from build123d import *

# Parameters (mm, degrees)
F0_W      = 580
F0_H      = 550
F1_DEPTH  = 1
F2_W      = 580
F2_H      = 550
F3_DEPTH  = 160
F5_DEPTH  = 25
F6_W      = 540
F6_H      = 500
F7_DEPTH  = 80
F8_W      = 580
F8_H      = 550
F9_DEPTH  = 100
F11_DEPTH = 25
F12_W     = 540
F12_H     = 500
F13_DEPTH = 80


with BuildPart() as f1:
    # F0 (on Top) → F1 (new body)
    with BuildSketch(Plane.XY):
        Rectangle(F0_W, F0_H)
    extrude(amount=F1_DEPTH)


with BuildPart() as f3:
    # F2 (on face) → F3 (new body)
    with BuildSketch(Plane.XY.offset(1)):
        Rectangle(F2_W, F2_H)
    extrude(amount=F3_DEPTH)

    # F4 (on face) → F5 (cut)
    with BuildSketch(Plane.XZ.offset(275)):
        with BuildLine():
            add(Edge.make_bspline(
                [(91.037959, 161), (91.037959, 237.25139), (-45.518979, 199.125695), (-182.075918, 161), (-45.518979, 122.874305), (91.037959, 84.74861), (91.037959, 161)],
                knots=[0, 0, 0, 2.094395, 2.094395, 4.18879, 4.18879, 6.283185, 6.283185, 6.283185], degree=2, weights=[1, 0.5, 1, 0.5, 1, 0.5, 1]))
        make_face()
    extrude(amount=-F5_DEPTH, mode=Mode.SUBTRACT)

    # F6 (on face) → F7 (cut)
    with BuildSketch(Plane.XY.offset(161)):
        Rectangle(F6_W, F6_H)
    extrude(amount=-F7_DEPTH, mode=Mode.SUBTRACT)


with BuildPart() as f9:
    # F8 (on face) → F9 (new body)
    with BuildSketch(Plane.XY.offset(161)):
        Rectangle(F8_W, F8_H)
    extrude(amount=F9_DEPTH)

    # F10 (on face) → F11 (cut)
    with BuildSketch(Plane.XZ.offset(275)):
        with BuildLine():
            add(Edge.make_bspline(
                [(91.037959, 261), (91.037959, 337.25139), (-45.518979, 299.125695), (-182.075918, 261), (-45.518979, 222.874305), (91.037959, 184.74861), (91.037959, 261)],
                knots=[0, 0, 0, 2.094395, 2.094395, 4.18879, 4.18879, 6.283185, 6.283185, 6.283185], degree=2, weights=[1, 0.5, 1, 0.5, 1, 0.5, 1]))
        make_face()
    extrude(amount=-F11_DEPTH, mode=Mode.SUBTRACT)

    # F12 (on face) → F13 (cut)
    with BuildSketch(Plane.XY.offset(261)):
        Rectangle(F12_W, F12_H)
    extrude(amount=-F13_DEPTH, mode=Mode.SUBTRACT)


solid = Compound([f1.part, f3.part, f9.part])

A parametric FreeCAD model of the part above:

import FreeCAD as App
import Part
import Sketcher
from FreeCAD import Vector
Q = App.Units.Quantity

doc = App.newDocument("Part")
body = doc.addObject("PartDesign::Body", "Body")

sketch1 = body.newObject("Sketcher::SketchObject", "Sketch")
sketch1.AttachmentSupport = (doc.getObject("XY_Plane"), [""])
sketch1.MapMode = "FlatFace"
sketch1.addGeometry(Part.LineSegment(Vector(-290, 275, 0), Vector(-290, -275, 0)), False)
sketch1.addGeometry(Part.LineSegment(Vector(-290, -275, 0), Vector(290, -275, 0)), False)
sketch1.addGeometry(Part.LineSegment(Vector(290, -275, 0), Vector(290, 275, 0)), False)
sketch1.addGeometry(Part.LineSegment(Vector(290, 275, 0), Vector(-290, 275, 0)), False)
sketch1.addConstraint(Sketcher.Constraint("Coincident", 0, 2, 1, 1))
sketch1.addConstraint(Sketcher.Constraint("Coincident", 1, 2, 2, 1))
sketch1.addConstraint(Sketcher.Constraint("Coincident", 2, 2, 3, 1))
sketch1.addConstraint(Sketcher.Constraint("Coincident", 3, 2, 0, 1))
sketch1.addConstraint(Sketcher.Constraint("Vertical", 0))
sketch1.addConstraint(Sketcher.Constraint("Horizontal", 1))
sketch1.addConstraint(Sketcher.Constraint("Vertical", 2))
sketch1.addConstraint(Sketcher.Constraint("Horizontal", 3))
sketch1.addConstraint(Sketcher.Constraint("Symmetric", 0, 2, 2, 2, -1, 1))
sketch1.addConstraint(Sketcher.Constraint("DistanceX", 1, 1, 1, 2, Q("580 mm")))
sketch1.addConstraint(Sketcher.Constraint("DistanceY", 0, 2, 0, 1, Q("550 mm")))
pad1 = body.newObject("PartDesign::Pad", "Pad")
pad1.Profile = sketch1
pad1.Length = 1
body2 = doc.addObject("PartDesign::Body", "Body001")

sketch2 = body2.newObject("Sketcher::SketchObject", "Sketch001")
sketch2.AttachmentSupport = (doc.getObject("XY_Plane001"), [""])
sketch2.MapMode = "FlatFace"
sketch2.AttachmentOffset = App.Placement(Vector(0, 0, 1), App.Rotation())
sketch2.addGeometry(Part.LineSegment(Vector(-290, 275, 0), Vector(-290, -275, 0)), False)
sketch2.addGeometry(Part.LineSegment(Vector(-290, -275, 0), Vector(290, -275, 0)), False)
sketch2.addGeometry(Part.LineSegment(Vector(290, -275, 0), Vector(290, 275, 0)), False)
sketch2.addGeometry(Part.LineSegment(Vector(290, 275, 0), Vector(-290, 275, 0)), False)
sketch2.addConstraint(Sketcher.Constraint("Coincident", 0, 2, 1, 1))
sketch2.addConstraint(Sketcher.Constraint("Coincident", 1, 2, 2, 1))
sketch2.addConstraint(Sketcher.Constraint("Coincident", 2, 2, 3, 1))
sketch2.addConstraint(Sketcher.Constraint("Coincident", 3, 2, 0, 1))
sketch2.addConstraint(Sketcher.Constraint("Vertical", 0))
sketch2.addConstraint(Sketcher.Constraint("Horizontal", 1))
sketch2.addConstraint(Sketcher.Constraint("Vertical", 2))
sketch2.addConstraint(Sketcher.Constraint("Horizontal", 3))
sketch2.addConstraint(Sketcher.Constraint("Symmetric", 0, 2, 2, 2, -1, 1))
sketch2.addConstraint(Sketcher.Constraint("DistanceX", 1, 1, 1, 2, Q("580 mm")))
sketch2.addConstraint(Sketcher.Constraint("DistanceY", 0, 2, 0, 1, Q("550 mm")))
pad2 = body2.newObject("PartDesign::Pad", "Pad001")
pad2.Profile = sketch2
pad2.Length = 160

sketch3 = body2.newObject("Sketcher::SketchObject", "Sketch002")
sketch3.AttachmentSupport = (doc.getObject("XZ_Plane001"), [""])
sketch3.MapMode = "FlatFace"
sketch3.AttachmentOffset = App.Placement(Vector(0, 0, 275), App.Rotation())
sketch3.addGeometry(Part.BSplineCurve([Vector(91.037959, 161, 0), Vector(91.037959, 237.25139, 0), Vector(-45.518979, 199.125695, 0), Vector(-182.075918, 161, 0), Vector(-45.518979, 122.874305, 0), Vector(91.037959, 84.74861, 0), Vector(91.037959, 161, 0)], [3, 2, 2, 3], [0, 2.094395, 4.18879, 6.283185], False, 2, [1, 0.5, 1, 0.5, 1, 0.5, 1], False), False)
sketch3.addConstraint(Sketcher.Constraint("Block", 0))
pocket1 = body2.newObject("PartDesign::Pocket", "Pocket")
pocket1.Profile = sketch3
pocket1.Length = 25

sketch4 = body2.newObject("Sketcher::SketchObject", "Sketch003")
sketch4.AttachmentSupport = (doc.getObject("XY_Plane001"), [""])
sketch4.MapMode = "FlatFace"
sketch4.AttachmentOffset = App.Placement(Vector(0, 0, 161), App.Rotation())
sketch4.addGeometry(Part.LineSegment(Vector(-270, 250, 0), Vector(-270, -250, 0)), False)
sketch4.addGeometry(Part.LineSegment(Vector(-270, -250, 0), Vector(270, -250, 0)), False)
sketch4.addGeometry(Part.LineSegment(Vector(270, -250, 0), Vector(270, 250, 0)), False)
sketch4.addGeometry(Part.LineSegment(Vector(270, 250, 0), Vector(-270, 250, 0)), False)
sketch4.addConstraint(Sketcher.Constraint("Coincident", 0, 2, 1, 1))
sketch4.addConstraint(Sketcher.Constraint("Coincident", 1, 2, 2, 1))
sketch4.addConstraint(Sketcher.Constraint("Coincident", 2, 2, 3, 1))
sketch4.addConstraint(Sketcher.Constraint("Coincident", 3, 2, 0, 1))
sketch4.addConstraint(Sketcher.Constraint("Vertical", 0))
sketch4.addConstraint(Sketcher.Constraint("Horizontal", 1))
sketch4.addConstraint(Sketcher.Constraint("Vertical", 2))
sketch4.addConstraint(Sketcher.Constraint("Horizontal", 3))
sketch4.addConstraint(Sketcher.Constraint("Symmetric", 0, 2, 2, 2, -1, 1))
sketch4.addConstraint(Sketcher.Constraint("DistanceX", 1, 1, 1, 2, Q("540 mm")))
sketch4.addConstraint(Sketcher.Constraint("DistanceY", 0, 2, 0, 1, Q("500 mm")))
pocket2 = body2.newObject("PartDesign::Pocket", "Pocket001")
pocket2.Profile = sketch4
pocket2.Length = 80
body3 = doc.addObject("PartDesign::Body", "Body002")

sketch5 = body3.newObject("Sketcher::SketchObject", "Sketch004")
sketch5.AttachmentSupport = (doc.getObject("XY_Plane002"), [""])
sketch5.MapMode = "FlatFace"
sketch5.AttachmentOffset = App.Placement(Vector(0, 0, 161), App.Rotation())
sketch5.addGeometry(Part.LineSegment(Vector(-290, 275, 0), Vector(-290, -275, 0)), False)
sketch5.addGeometry(Part.LineSegment(Vector(-290, -275, 0), Vector(290, -275, 0)), False)
sketch5.addGeometry(Part.LineSegment(Vector(290, -275, 0), Vector(290, 275, 0)), False)
sketch5.addGeometry(Part.LineSegment(Vector(290, 275, 0), Vector(-290, 275, 0)), False)
sketch5.addConstraint(Sketcher.Constraint("Coincident", 0, 2, 1, 1))
sketch5.addConstraint(Sketcher.Constraint("Coincident", 1, 2, 2, 1))
sketch5.addConstraint(Sketcher.Constraint("Coincident", 2, 2, 3, 1))
sketch5.addConstraint(Sketcher.Constraint("Coincident", 3, 2, 0, 1))
sketch5.addConstraint(Sketcher.Constraint("Vertical", 0))
sketch5.addConstraint(Sketcher.Constraint("Horizontal", 1))
sketch5.addConstraint(Sketcher.Constraint("Vertical", 2))
sketch5.addConstraint(Sketcher.Constraint("Horizontal", 3))
sketch5.addConstraint(Sketcher.Constraint("Symmetric", 0, 2, 2, 2, -1, 1))
sketch5.addConstraint(Sketcher.Constraint("DistanceX", 1, 1, 1, 2, Q("580 mm")))
sketch5.addConstraint(Sketcher.Constraint("DistanceY", 0, 2, 0, 1, Q("550 mm")))
pad3 = body3.newObject("PartDesign::Pad", "Pad002")
pad3.Profile = sketch5
pad3.Length = 100

sketch6 = body3.newObject("Sketcher::SketchObject", "Sketch005")
sketch6.AttachmentSupport = (doc.getObject("XZ_Plane002"), [""])
sketch6.MapMode = "FlatFace"
sketch6.AttachmentOffset = App.Placement(Vector(0, 0, 275), App.Rotation())
sketch6.addGeometry(Part.BSplineCurve([Vector(91.037959, 261, 0), Vector(91.037959, 337.25139, 0), Vector(-45.518979, 299.125695, 0), Vector(-182.075918, 261, 0), Vector(-45.518979, 222.874305, 0), Vector(91.037959, 184.74861, 0), Vector(91.037959, 261, 0)], [3, 2, 2, 3], [0, 2.094395, 4.18879, 6.283185], False, 2, [1, 0.5, 1, 0.5, 1, 0.5, 1], False), False)
sketch6.addConstraint(Sketcher.Constraint("Block", 0))
pocket3 = body3.newObject("PartDesign::Pocket", "Pocket002")
pocket3.Profile = sketch6
pocket3.Length = 25

sketch7 = body3.newObject("Sketcher::SketchObject", "Sketch006")
sketch7.AttachmentSupport = (doc.getObject("XY_Plane002"), [""])
sketch7.MapMode = "FlatFace"
sketch7.AttachmentOffset = App.Placement(Vector(0, 0, 261), App.Rotation())
sketch7.addGeometry(Part.LineSegment(Vector(-270, 250, 0), Vector(-270, -250, 0)), False)
sketch7.addGeometry(Part.LineSegment(Vector(-270, -250, 0), Vector(270, -250, 0)), False)
sketch7.addGeometry(Part.LineSegment(Vector(270, -250, 0), Vector(270, 250, 0)), False)
sketch7.addGeometry(Part.LineSegment(Vector(270, 250, 0), Vector(-270, 250, 0)), False)
sketch7.addConstraint(Sketcher.Constraint("Coincident", 0, 2, 1, 1))
sketch7.addConstraint(Sketcher.Constraint("Coincident", 1, 2, 2, 1))
sketch7.addConstraint(Sketcher.Constraint("Coincident", 2, 2, 3, 1))
sketch7.addConstraint(Sketcher.Constraint("Coincident", 3, 2, 0, 1))
sketch7.addConstraint(Sketcher.Constraint("Vertical", 0))
sketch7.addConstraint(Sketcher.Constraint("Horizontal", 1))
sketch7.addConstraint(Sketcher.Constraint("Vertical", 2))
sketch7.addConstraint(Sketcher.Constraint("Horizontal", 3))
sketch7.addConstraint(Sketcher.Constraint("Symmetric", 0, 2, 2, 2, -1, 1))
sketch7.addConstraint(Sketcher.Constraint("DistanceX", 1, 1, 1, 2, Q("540 mm")))
sketch7.addConstraint(Sketcher.Constraint("DistanceY", 0, 2, 0, 1, Q("500 mm")))
pocket4 = body3.newObject("PartDesign::Pocket", "Pocket003")
pocket4.Profile = sketch7
pocket4.Length = 80

doc.recompute()
